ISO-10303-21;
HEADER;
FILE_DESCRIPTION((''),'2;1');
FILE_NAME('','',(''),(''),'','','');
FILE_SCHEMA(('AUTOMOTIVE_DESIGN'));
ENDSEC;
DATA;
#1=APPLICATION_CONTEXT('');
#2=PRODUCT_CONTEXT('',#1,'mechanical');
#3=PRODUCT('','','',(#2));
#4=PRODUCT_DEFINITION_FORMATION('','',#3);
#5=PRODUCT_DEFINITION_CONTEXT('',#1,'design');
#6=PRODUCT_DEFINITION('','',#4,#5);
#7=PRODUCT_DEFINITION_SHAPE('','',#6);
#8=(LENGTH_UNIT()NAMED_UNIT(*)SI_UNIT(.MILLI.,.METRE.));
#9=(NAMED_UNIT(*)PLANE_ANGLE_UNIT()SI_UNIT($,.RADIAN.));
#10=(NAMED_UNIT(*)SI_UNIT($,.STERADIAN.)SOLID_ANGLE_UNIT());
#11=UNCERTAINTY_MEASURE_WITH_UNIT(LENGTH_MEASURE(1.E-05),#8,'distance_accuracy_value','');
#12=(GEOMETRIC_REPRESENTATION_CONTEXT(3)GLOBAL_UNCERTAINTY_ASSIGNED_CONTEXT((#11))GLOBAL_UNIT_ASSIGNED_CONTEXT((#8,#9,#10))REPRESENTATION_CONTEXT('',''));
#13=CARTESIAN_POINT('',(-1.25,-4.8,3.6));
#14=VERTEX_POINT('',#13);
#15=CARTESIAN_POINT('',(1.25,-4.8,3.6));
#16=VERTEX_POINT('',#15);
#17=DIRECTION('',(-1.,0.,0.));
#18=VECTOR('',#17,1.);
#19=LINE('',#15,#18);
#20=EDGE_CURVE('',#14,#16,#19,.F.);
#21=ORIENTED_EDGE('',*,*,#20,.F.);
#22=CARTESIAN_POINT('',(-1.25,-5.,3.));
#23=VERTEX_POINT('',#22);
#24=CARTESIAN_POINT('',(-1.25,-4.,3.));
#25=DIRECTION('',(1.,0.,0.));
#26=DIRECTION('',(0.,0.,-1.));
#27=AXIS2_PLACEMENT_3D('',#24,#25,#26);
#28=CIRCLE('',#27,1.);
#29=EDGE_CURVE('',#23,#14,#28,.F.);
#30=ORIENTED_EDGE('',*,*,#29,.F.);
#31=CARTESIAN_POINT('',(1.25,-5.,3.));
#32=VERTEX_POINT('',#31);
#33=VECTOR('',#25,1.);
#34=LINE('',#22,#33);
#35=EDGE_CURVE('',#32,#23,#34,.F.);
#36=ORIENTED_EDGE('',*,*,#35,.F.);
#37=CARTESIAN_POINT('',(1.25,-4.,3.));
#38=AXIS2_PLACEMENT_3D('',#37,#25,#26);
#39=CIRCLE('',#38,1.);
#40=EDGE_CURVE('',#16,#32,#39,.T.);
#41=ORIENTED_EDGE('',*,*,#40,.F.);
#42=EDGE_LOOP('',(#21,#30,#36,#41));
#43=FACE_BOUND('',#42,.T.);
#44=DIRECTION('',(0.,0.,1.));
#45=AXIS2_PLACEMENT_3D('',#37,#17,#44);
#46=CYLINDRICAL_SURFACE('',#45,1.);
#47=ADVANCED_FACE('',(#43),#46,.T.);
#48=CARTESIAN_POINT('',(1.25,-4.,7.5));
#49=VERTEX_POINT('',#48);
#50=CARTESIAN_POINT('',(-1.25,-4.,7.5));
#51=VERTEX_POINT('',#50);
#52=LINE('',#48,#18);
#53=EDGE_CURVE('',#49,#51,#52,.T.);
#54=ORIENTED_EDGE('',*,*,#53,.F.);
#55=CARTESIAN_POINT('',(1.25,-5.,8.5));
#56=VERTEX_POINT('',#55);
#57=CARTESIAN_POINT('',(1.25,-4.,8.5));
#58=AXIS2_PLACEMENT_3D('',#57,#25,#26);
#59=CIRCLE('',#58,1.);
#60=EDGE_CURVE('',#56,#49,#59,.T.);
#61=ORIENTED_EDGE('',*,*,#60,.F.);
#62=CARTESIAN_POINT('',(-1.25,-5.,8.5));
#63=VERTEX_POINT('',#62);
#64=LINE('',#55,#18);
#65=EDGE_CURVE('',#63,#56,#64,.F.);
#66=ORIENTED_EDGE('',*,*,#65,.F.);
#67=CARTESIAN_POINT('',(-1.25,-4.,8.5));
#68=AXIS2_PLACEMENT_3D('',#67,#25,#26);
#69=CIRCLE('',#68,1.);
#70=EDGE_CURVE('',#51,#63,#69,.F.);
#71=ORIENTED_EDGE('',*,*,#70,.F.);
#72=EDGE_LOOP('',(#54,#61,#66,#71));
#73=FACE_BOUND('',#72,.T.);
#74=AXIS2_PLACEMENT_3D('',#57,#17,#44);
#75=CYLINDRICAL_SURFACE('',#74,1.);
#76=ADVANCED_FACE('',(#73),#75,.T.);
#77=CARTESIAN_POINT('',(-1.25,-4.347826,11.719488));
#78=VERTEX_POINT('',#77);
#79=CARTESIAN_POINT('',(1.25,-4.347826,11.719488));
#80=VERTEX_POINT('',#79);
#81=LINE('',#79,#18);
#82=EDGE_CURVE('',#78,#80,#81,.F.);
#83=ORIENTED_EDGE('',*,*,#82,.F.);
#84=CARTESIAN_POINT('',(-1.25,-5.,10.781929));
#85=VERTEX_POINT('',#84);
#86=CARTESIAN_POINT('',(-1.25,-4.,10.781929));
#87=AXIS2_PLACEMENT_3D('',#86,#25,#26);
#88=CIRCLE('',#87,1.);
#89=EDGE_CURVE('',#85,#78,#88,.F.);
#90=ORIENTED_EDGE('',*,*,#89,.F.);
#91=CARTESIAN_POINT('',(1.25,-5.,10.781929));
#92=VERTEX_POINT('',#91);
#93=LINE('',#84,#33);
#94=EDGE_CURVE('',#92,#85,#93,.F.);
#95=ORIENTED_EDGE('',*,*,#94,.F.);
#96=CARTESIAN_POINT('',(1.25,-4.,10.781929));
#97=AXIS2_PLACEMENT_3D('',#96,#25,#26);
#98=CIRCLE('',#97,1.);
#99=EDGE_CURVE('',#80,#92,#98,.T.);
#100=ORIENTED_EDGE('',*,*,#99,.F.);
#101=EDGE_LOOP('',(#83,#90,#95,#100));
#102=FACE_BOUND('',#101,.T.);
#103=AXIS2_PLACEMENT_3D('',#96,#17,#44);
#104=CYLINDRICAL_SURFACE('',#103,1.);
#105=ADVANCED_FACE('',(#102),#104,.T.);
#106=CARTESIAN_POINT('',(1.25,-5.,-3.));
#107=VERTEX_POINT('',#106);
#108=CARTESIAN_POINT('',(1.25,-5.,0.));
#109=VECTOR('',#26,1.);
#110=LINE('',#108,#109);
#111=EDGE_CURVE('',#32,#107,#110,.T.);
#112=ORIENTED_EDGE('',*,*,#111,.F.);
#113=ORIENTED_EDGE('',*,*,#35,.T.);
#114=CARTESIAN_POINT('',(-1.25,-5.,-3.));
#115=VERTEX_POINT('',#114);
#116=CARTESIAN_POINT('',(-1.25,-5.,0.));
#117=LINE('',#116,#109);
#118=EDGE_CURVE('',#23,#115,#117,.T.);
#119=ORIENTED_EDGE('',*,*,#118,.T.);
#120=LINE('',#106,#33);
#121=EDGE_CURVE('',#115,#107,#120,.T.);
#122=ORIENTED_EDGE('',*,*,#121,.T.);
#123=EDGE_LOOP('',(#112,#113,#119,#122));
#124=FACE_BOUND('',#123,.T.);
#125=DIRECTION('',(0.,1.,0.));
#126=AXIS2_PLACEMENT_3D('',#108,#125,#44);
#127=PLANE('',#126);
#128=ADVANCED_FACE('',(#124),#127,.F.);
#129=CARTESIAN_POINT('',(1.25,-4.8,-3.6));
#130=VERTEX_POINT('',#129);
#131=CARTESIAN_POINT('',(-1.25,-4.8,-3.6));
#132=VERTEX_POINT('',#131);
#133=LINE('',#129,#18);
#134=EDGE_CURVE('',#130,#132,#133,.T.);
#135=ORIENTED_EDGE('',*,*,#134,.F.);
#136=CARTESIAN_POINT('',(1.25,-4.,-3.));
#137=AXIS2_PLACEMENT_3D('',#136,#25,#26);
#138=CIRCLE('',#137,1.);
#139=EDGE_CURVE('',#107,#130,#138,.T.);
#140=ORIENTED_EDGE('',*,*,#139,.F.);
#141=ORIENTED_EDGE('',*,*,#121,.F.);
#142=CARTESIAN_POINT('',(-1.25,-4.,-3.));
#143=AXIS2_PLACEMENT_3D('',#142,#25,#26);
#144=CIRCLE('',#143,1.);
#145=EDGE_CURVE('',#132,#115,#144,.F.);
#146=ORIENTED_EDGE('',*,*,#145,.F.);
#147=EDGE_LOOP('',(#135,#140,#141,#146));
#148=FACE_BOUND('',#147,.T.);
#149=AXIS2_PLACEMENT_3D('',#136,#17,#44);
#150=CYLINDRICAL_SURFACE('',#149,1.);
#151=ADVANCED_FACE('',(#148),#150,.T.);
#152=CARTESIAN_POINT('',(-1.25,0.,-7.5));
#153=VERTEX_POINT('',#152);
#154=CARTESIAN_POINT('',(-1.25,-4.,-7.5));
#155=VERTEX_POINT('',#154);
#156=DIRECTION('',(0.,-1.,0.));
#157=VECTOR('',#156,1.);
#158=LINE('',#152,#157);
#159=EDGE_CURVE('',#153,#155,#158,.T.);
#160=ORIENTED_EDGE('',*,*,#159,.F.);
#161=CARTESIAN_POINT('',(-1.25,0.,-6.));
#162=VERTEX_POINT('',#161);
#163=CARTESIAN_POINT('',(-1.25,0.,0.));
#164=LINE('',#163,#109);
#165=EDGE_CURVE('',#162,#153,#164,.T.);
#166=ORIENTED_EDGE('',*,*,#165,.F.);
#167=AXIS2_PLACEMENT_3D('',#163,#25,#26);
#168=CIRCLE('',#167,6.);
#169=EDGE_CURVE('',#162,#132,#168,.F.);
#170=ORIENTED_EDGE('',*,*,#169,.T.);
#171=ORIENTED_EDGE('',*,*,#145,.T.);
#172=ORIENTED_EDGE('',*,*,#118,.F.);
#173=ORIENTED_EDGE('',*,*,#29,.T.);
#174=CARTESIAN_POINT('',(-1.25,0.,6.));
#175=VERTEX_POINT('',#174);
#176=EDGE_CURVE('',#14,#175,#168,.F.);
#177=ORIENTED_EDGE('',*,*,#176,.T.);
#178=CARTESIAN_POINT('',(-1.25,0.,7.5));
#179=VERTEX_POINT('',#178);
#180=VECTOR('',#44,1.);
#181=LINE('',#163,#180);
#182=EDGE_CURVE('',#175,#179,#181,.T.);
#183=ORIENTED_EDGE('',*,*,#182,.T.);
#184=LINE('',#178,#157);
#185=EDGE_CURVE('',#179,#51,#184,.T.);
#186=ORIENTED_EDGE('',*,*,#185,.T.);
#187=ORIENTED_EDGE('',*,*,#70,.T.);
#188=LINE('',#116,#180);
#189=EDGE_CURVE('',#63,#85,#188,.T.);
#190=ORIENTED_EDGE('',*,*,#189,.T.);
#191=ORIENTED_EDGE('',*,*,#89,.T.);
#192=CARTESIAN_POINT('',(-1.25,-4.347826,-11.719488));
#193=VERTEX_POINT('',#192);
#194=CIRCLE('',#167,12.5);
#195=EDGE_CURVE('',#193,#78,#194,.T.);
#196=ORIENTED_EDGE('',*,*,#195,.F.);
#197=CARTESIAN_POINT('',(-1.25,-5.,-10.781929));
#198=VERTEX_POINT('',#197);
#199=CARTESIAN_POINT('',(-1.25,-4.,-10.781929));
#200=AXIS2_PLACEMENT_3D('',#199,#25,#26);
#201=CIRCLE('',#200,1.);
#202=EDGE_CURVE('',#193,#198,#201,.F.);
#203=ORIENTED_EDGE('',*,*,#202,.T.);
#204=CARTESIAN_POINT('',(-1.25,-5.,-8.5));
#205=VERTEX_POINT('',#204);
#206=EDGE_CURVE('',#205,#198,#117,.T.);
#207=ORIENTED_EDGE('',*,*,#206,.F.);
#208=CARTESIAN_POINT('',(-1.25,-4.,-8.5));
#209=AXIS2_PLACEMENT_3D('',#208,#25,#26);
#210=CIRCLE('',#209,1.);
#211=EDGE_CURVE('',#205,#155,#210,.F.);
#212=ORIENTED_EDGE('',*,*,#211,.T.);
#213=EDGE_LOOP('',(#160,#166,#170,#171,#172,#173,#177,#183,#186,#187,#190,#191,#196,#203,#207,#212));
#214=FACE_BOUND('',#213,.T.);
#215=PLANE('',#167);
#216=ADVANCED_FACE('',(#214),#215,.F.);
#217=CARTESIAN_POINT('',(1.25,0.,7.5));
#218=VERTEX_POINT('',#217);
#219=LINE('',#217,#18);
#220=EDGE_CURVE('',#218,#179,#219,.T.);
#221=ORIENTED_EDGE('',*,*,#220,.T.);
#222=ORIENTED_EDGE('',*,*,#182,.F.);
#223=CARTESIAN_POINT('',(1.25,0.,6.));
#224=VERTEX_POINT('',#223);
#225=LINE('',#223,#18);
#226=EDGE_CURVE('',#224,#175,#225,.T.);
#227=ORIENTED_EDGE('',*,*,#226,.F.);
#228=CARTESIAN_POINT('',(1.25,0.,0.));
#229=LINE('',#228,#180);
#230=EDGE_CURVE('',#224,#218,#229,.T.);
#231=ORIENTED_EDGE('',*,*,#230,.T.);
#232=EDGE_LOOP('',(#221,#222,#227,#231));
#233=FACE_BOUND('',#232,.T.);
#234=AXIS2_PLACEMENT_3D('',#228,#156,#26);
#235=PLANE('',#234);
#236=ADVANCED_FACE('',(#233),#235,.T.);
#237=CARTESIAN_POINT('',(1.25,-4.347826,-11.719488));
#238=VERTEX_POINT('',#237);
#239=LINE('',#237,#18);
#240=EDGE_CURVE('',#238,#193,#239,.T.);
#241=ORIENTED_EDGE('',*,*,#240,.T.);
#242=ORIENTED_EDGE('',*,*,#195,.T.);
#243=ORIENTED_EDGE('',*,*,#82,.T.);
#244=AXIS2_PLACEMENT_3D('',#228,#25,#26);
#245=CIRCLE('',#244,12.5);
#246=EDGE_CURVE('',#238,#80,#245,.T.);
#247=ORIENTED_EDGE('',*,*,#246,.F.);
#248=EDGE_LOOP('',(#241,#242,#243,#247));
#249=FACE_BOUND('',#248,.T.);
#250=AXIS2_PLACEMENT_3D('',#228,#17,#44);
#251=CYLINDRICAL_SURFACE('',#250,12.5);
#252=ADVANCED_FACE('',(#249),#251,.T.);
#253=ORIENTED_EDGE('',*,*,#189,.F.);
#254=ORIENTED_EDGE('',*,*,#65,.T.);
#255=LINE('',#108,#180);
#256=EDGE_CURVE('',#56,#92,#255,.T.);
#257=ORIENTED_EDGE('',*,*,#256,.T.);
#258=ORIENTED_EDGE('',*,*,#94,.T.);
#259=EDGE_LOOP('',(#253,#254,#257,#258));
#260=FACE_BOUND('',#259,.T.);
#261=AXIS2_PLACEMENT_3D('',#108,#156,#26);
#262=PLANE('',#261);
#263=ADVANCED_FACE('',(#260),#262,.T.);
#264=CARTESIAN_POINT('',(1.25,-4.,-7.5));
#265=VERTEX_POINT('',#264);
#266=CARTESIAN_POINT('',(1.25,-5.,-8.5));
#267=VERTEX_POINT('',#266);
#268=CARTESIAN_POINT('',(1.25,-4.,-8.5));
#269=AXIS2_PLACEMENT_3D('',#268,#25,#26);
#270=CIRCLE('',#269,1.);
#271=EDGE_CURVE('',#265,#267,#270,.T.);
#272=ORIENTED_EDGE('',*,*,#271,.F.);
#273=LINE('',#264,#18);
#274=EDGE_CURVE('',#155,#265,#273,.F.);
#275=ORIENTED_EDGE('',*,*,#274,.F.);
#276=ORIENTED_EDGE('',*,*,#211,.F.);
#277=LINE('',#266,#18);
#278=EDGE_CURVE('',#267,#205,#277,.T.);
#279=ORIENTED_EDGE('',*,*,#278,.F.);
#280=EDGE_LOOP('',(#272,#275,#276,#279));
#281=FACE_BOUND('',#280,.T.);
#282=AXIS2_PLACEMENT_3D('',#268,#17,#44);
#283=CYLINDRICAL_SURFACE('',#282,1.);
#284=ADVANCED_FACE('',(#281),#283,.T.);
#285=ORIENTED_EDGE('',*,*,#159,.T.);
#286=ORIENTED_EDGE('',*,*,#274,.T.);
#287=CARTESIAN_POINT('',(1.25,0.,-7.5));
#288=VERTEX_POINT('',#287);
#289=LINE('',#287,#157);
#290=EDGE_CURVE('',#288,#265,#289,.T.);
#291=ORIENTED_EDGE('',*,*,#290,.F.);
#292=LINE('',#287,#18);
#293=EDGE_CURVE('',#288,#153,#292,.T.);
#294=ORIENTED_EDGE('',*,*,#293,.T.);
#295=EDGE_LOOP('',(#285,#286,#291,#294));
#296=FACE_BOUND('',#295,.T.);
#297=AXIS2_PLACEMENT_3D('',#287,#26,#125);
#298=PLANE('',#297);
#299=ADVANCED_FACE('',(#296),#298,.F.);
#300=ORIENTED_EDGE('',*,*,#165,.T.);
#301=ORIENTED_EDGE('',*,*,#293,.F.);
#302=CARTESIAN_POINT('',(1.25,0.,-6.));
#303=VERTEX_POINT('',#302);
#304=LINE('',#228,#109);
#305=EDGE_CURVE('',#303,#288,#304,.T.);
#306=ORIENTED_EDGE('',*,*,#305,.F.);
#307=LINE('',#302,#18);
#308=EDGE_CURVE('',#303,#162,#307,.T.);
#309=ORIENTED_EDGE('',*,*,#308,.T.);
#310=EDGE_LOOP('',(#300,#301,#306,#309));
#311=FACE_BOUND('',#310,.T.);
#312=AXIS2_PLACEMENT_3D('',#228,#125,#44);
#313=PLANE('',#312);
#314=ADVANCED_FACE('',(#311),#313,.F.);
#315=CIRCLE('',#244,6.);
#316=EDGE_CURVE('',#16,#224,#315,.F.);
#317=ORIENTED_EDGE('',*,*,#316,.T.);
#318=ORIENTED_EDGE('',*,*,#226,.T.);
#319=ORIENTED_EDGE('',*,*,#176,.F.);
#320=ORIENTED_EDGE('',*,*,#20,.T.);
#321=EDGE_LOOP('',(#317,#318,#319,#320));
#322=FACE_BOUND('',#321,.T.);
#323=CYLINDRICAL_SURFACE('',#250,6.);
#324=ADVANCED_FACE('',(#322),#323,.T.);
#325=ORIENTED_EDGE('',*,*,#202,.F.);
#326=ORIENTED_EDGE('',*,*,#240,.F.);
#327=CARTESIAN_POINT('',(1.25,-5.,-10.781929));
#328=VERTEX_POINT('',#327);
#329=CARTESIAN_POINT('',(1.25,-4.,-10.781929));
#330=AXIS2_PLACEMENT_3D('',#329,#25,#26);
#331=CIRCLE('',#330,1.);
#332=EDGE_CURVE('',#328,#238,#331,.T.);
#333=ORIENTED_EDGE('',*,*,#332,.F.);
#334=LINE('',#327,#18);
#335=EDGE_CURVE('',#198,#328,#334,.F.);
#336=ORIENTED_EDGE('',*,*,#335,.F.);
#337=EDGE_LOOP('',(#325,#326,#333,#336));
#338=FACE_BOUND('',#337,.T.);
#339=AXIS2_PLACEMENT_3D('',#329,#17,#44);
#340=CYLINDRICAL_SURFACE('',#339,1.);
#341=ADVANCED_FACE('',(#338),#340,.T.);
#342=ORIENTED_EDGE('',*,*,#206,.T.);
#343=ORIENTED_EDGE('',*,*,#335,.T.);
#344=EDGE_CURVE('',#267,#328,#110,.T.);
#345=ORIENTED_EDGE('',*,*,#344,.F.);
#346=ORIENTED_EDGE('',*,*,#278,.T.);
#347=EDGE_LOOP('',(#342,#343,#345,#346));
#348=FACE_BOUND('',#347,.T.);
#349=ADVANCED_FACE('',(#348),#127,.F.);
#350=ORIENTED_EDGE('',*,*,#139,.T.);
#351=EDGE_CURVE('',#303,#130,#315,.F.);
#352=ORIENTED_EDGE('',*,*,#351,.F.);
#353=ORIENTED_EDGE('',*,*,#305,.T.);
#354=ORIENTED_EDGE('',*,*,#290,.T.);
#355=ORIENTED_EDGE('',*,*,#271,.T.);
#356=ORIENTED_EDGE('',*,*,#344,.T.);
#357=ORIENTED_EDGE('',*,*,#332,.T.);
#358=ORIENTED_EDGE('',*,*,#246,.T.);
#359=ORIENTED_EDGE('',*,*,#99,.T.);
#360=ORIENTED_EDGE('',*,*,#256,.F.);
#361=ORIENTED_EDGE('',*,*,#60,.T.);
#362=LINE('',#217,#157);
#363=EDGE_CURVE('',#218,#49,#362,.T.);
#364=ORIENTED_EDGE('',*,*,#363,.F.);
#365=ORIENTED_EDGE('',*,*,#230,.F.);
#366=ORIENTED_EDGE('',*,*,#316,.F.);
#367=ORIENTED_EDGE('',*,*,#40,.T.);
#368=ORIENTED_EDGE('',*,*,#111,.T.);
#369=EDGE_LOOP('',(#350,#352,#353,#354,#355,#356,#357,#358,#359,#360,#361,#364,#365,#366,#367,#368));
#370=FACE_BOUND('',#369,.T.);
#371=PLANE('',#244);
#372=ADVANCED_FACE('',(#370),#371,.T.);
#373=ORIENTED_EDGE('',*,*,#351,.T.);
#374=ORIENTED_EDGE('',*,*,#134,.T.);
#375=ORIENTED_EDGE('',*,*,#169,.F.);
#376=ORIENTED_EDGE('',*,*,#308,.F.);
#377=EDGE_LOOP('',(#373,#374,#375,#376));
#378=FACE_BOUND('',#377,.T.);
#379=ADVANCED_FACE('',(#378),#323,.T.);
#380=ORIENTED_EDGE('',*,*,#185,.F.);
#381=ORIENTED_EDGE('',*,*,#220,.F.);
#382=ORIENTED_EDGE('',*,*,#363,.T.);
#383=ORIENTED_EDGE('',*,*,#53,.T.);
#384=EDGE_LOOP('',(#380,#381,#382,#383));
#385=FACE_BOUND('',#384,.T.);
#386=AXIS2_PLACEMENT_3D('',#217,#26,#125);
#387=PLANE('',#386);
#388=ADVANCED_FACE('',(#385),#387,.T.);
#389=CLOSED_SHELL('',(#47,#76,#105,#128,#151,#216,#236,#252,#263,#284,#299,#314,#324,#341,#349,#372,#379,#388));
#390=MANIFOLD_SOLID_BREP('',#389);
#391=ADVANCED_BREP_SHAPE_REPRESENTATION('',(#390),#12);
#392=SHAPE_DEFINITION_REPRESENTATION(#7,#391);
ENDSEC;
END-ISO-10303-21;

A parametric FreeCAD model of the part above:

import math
import FreeCAD as App
import Part
import Sketcher
from FreeCAD import Vector
Q = App.Units.Quantity


def edges_at(feature, points):
    """Names of the edges that pass closest to the given points."""
    edges = feature.Shape.Edges
    near = lambda p: min(range(len(edges)), key=lambda i: edges[i].distToShape(Part.Vertex(*p))[0])
    return sorted({f"Edge{near(p) + 1}" for p in points})

doc = App.newDocument("Part")
body = doc.addObject("PartDesign::Body", "Body")

sketch1 = body.newObject("Sketcher::SketchObject", "Sketch")
sketch1.AttachmentSupport = (doc.getObject("YZ_Plane"), [""])
sketch1.MapMode = "FlatFace"
sketch1.addGeometry([
    Part.LineSegment(Vector(-5, -7.5, 0), Vector(-5, -11.456439, 0)),
    Part.ArcOfCircle(Part.Circle(Vector(0, 0, 0), Vector(0, 0, 1), 12.5), math.radians(-113.578178), math.radians(-66.421822)),
    Part.ArcOfCircle(Part.Circle(Vector(0, 0, 0), Vector(0, 0, 1), 12.5), math.radians(-66.421822), math.radians(66.421822)),
    Part.ArcOfCircle(Part.Circle(Vector(0, 0, 0), Vector(0, 0, 1), 12.5), math.radians(66.421822), math.radians(113.578178)),
    Part.LineSegment(Vector(-5, 11.456439, 0), Vector(-5, 7.5, 0)),
    Part.LineSegment(Vector(-5, 7.5, 0), Vector(0, 7.5, 0)),
    Part.LineSegment(Vector(0, 7.5, 0), Vector(0, 6, 0)),
    Part.ArcOfCircle(Part.Circle(Vector(0, 0, 0), Vector(0, 0, 1), 6), math.radians(90), math.radians(146.44269)),
    Part.LineSegment(Vector(-5, 3.316625, 0), Vector(-5, -3.316625, 0)),
    Part.ArcOfCircle(Part.Circle(Vector(0, 0, 0), Vector(0, 0, 1), 6), math.radians(-146.44269), math.radians(-90)),
    Part.LineSegment(Vector(0, -6, 0), Vector(0, -7.5, 0)),
    Part.LineSegment(Vector(0, -7.5, 0), Vector(-5, -7.5, 0)),
], False)
sketch1.addConstraint([
    Sketcher.Constraint("Coincident", 0, 2, 1, 1),
    Sketcher.Constraint("Tangent", 1, 2, 2, 1),
    Sketcher.Constraint("Tangent", 2, 2, 3, 1),
    Sketcher.Constraint("Coincident", 3, 2, 4, 1),
    Sketcher.Constraint("Coincident", 4, 2, 5, 1),
    Sketcher.Constraint("Coincident", 5, 2, 6, 1),
    Sketcher.Constraint("Coincident", 6, 2, 7, 1),
    Sketcher.Constraint("Coincident", 7, 2, 8, 1),
    Sketcher.Constraint("Coincident", 8, 2, 9, 1),
    Sketcher.Constraint("Coincident", 9, 2, 10, 1),
    Sketcher.Constraint("Coincident", 10, 2, 11, 1),
    Sketcher.Constraint("Coincident", 11, 2, 0, 1),
    Sketcher.Constraint("Vertical", 0),
    Sketcher.Constraint("Vertical", 4),
    Sketcher.Constraint("Horizontal", 5),
    Sketcher.Constraint("Vertical", 6),
    Sketcher.Constraint("Vertical", 8),
    Sketcher.Constraint("Vertical", 10),
    Sketcher.Constraint("Horizontal", 11),
    Sketcher.Constraint("Coincident", 1, 3, -1, 1),
    Sketcher.Constraint("Coincident", 3, 3, -1, 1),
    Sketcher.Constraint("Coincident", 7, 3, -1, 1),
    Sketcher.Constraint("Coincident", 9, 3, -1, 1),
    Sketcher.Constraint("Equal", 7, 9),
    Sketcher.Constraint("Symmetric", 5, 2, 10, 2, -1, 1),
    Sketcher.Constraint("PointOnObject", 5, 2, -2),
    Sketcher.Constraint("Horizontal", 0, 2, 1, 2),
    Sketcher.Constraint("Horizontal", 2, 2, 3, 2),
    Sketcher.Constraint("Vertical", 1, 2, 2, 2),
    Sketcher.Constraint("Vertical", 4, 2, 7, 2),
    Sketcher.Constraint("Radius", 7, Q("6 mm")),
    Sketcher.Constraint("Radius", 1, Q("12.5 mm")),
    Sketcher.Constraint("DistanceX", 5, 1, 5, 2, Q("5 mm")),
    Sketcher.Constraint("DistanceY", 6, 2, 6, 1, Q("1.5 mm")),
])
pad1 = body.newObject("PartDesign::Pad", "Pad")
pad1.Profile = sketch1
pad1.Length = 2.5
pad1.Midplane = True
doc.recompute()

fillet = body.newObject("PartDesign::Fillet", "Fillet")
fillet.Base = (pad1, edges_at(pad1, [
    (0, -5, -3.317),
    (0, -5, 3.317),
    (0, -5, 7.5),
    (0, -5, 11.456),
    (0, -5, -11.456),
    (0, -5, -7.5),
]))
fillet.Radius = 1

doc.recompute()
